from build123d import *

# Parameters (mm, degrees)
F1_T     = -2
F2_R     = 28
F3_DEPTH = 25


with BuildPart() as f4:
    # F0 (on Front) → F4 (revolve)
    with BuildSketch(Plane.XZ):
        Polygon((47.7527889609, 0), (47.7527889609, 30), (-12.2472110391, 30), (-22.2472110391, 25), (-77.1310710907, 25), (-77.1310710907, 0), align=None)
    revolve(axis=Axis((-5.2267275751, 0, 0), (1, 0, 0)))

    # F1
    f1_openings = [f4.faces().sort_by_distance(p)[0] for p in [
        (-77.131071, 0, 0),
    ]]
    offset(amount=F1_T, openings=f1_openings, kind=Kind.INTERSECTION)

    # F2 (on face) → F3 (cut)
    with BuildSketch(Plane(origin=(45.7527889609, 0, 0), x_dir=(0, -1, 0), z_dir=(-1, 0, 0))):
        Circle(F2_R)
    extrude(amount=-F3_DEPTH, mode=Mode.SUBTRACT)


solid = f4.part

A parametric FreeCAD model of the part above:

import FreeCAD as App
import Part
import Sketcher
Q = App.Units.Quantity


def faces_at(feature, points):
    """Names of the faces that lie closest to the given points."""
    faces = feature.Shape.Faces
    near = lambda p: min(range(len(faces)), key=lambda i: faces[i].distToShape(Part.Vertex(*p))[0])
    return sorted({f"Face{near(p) + 1}" for p in points})


def add_polygon(sketch, points):
    """Adds a closed chain of lines whose ends are joined by coincident constraints."""
    first, n = sketch.GeometryCount, len(points)
    for a, b in zip(points, points[1:] + points[:1]):
        sketch.addGeometry(Part.LineSegment(App.Vector(*a, 0), App.Vector(*b, 0)), False)
    for i in range(n):
        sketch.addConstraint(Sketcher.Constraint("Coincident", first + i, 2, first + (i + 1) % n, 1))

doc = App.newDocument("Part")
body = doc.addObject("PartDesign::Body", "Body")

sketch1 = body.newObject("Sketcher::SketchObject", "Sketch")
sketch1.AttachmentSupport = (doc.getObject("XZ_Plane"), [""])
sketch1.MapMode = "FlatFace"
add_polygon(sketch1, [(47.752789, 0), (47.752789, 30), (-12.247211, 30), (-22.247211, 25), (-77.131071, 25), (-77.131071, 0)])
sketch1.addConstraint([
    Sketcher.Constraint("Vertical", 0),
    Sketcher.Constraint("Horizontal", 1),
    Sketcher.Constraint("Horizontal", 3),
    Sketcher.Constraint("Vertical", 4),
    Sketcher.Constraint("Horizontal", 5),
    Sketcher.Constraint("PointOnObject", 4, 2, -1),
    Sketcher.Constraint("DistanceX", 1, 2, 1, 1, Q("60 mm")),
    Sketcher.Constraint("DistanceY", 0, 1, 0, 2, Q("30 mm")),
    Sketcher.Constraint("DistanceY", 4, 2, 4, 1, Q("25 mm")),
    Sketcher.Constraint("DistanceX", 2, 2, 1, 2, Q("10 mm")),
    Sketcher.Constraint("DistanceX", 3, 2, 3, 1, Q("54.88386 mm")),
    Sketcher.Constraint("DistanceX", -1, 1, 0, 2, Q("47.752789 mm")),
])
revolution = body.newObject("PartDesign::Revolution", "Revolution")
revolution.Profile = sketch1
revolution.ReferenceAxis = (sketch1, ["H_Axis"])
revolution.Angle = 360
doc.recompute()

thickness = body.newObject("PartDesign::Thickness", "Thickness")
thickness.Base = (revolution, faces_at(revolution, [(-77.131, 0, 0)]))
thickness.Value = 2
thickness.Reversed = True
thickness.Join = "Intersection"

sketch2 = body.newObject("Sketcher::SketchObject", "Sketch001")
sketch2.AttachmentSupport = (doc.getObject("YZ_Plane"), [""])
sketch2.MapMode = "FlatFace"
sketch2.AttachmentOffset = App.Placement(App.Vector(0, 0, 45.752789), App.Rotation())
sketch2.addGeometry(Part.Circle(App.Vector(0, 0, 0), App.Vector(0, 0, 1), 28), False)
sketch2.addConstraint([
    Sketcher.Constraint("Coincident", 0, 3, -1, 1),
    Sketcher.Constraint("Diameter", 0, Q("56 mm")),
])
pocket1 = body.newObject("PartDesign::Pocket", "Pocket")
pocket1.Profile = sketch2
pocket1.Length = 25
pocket1.Reversed = True

doc.recompute()
